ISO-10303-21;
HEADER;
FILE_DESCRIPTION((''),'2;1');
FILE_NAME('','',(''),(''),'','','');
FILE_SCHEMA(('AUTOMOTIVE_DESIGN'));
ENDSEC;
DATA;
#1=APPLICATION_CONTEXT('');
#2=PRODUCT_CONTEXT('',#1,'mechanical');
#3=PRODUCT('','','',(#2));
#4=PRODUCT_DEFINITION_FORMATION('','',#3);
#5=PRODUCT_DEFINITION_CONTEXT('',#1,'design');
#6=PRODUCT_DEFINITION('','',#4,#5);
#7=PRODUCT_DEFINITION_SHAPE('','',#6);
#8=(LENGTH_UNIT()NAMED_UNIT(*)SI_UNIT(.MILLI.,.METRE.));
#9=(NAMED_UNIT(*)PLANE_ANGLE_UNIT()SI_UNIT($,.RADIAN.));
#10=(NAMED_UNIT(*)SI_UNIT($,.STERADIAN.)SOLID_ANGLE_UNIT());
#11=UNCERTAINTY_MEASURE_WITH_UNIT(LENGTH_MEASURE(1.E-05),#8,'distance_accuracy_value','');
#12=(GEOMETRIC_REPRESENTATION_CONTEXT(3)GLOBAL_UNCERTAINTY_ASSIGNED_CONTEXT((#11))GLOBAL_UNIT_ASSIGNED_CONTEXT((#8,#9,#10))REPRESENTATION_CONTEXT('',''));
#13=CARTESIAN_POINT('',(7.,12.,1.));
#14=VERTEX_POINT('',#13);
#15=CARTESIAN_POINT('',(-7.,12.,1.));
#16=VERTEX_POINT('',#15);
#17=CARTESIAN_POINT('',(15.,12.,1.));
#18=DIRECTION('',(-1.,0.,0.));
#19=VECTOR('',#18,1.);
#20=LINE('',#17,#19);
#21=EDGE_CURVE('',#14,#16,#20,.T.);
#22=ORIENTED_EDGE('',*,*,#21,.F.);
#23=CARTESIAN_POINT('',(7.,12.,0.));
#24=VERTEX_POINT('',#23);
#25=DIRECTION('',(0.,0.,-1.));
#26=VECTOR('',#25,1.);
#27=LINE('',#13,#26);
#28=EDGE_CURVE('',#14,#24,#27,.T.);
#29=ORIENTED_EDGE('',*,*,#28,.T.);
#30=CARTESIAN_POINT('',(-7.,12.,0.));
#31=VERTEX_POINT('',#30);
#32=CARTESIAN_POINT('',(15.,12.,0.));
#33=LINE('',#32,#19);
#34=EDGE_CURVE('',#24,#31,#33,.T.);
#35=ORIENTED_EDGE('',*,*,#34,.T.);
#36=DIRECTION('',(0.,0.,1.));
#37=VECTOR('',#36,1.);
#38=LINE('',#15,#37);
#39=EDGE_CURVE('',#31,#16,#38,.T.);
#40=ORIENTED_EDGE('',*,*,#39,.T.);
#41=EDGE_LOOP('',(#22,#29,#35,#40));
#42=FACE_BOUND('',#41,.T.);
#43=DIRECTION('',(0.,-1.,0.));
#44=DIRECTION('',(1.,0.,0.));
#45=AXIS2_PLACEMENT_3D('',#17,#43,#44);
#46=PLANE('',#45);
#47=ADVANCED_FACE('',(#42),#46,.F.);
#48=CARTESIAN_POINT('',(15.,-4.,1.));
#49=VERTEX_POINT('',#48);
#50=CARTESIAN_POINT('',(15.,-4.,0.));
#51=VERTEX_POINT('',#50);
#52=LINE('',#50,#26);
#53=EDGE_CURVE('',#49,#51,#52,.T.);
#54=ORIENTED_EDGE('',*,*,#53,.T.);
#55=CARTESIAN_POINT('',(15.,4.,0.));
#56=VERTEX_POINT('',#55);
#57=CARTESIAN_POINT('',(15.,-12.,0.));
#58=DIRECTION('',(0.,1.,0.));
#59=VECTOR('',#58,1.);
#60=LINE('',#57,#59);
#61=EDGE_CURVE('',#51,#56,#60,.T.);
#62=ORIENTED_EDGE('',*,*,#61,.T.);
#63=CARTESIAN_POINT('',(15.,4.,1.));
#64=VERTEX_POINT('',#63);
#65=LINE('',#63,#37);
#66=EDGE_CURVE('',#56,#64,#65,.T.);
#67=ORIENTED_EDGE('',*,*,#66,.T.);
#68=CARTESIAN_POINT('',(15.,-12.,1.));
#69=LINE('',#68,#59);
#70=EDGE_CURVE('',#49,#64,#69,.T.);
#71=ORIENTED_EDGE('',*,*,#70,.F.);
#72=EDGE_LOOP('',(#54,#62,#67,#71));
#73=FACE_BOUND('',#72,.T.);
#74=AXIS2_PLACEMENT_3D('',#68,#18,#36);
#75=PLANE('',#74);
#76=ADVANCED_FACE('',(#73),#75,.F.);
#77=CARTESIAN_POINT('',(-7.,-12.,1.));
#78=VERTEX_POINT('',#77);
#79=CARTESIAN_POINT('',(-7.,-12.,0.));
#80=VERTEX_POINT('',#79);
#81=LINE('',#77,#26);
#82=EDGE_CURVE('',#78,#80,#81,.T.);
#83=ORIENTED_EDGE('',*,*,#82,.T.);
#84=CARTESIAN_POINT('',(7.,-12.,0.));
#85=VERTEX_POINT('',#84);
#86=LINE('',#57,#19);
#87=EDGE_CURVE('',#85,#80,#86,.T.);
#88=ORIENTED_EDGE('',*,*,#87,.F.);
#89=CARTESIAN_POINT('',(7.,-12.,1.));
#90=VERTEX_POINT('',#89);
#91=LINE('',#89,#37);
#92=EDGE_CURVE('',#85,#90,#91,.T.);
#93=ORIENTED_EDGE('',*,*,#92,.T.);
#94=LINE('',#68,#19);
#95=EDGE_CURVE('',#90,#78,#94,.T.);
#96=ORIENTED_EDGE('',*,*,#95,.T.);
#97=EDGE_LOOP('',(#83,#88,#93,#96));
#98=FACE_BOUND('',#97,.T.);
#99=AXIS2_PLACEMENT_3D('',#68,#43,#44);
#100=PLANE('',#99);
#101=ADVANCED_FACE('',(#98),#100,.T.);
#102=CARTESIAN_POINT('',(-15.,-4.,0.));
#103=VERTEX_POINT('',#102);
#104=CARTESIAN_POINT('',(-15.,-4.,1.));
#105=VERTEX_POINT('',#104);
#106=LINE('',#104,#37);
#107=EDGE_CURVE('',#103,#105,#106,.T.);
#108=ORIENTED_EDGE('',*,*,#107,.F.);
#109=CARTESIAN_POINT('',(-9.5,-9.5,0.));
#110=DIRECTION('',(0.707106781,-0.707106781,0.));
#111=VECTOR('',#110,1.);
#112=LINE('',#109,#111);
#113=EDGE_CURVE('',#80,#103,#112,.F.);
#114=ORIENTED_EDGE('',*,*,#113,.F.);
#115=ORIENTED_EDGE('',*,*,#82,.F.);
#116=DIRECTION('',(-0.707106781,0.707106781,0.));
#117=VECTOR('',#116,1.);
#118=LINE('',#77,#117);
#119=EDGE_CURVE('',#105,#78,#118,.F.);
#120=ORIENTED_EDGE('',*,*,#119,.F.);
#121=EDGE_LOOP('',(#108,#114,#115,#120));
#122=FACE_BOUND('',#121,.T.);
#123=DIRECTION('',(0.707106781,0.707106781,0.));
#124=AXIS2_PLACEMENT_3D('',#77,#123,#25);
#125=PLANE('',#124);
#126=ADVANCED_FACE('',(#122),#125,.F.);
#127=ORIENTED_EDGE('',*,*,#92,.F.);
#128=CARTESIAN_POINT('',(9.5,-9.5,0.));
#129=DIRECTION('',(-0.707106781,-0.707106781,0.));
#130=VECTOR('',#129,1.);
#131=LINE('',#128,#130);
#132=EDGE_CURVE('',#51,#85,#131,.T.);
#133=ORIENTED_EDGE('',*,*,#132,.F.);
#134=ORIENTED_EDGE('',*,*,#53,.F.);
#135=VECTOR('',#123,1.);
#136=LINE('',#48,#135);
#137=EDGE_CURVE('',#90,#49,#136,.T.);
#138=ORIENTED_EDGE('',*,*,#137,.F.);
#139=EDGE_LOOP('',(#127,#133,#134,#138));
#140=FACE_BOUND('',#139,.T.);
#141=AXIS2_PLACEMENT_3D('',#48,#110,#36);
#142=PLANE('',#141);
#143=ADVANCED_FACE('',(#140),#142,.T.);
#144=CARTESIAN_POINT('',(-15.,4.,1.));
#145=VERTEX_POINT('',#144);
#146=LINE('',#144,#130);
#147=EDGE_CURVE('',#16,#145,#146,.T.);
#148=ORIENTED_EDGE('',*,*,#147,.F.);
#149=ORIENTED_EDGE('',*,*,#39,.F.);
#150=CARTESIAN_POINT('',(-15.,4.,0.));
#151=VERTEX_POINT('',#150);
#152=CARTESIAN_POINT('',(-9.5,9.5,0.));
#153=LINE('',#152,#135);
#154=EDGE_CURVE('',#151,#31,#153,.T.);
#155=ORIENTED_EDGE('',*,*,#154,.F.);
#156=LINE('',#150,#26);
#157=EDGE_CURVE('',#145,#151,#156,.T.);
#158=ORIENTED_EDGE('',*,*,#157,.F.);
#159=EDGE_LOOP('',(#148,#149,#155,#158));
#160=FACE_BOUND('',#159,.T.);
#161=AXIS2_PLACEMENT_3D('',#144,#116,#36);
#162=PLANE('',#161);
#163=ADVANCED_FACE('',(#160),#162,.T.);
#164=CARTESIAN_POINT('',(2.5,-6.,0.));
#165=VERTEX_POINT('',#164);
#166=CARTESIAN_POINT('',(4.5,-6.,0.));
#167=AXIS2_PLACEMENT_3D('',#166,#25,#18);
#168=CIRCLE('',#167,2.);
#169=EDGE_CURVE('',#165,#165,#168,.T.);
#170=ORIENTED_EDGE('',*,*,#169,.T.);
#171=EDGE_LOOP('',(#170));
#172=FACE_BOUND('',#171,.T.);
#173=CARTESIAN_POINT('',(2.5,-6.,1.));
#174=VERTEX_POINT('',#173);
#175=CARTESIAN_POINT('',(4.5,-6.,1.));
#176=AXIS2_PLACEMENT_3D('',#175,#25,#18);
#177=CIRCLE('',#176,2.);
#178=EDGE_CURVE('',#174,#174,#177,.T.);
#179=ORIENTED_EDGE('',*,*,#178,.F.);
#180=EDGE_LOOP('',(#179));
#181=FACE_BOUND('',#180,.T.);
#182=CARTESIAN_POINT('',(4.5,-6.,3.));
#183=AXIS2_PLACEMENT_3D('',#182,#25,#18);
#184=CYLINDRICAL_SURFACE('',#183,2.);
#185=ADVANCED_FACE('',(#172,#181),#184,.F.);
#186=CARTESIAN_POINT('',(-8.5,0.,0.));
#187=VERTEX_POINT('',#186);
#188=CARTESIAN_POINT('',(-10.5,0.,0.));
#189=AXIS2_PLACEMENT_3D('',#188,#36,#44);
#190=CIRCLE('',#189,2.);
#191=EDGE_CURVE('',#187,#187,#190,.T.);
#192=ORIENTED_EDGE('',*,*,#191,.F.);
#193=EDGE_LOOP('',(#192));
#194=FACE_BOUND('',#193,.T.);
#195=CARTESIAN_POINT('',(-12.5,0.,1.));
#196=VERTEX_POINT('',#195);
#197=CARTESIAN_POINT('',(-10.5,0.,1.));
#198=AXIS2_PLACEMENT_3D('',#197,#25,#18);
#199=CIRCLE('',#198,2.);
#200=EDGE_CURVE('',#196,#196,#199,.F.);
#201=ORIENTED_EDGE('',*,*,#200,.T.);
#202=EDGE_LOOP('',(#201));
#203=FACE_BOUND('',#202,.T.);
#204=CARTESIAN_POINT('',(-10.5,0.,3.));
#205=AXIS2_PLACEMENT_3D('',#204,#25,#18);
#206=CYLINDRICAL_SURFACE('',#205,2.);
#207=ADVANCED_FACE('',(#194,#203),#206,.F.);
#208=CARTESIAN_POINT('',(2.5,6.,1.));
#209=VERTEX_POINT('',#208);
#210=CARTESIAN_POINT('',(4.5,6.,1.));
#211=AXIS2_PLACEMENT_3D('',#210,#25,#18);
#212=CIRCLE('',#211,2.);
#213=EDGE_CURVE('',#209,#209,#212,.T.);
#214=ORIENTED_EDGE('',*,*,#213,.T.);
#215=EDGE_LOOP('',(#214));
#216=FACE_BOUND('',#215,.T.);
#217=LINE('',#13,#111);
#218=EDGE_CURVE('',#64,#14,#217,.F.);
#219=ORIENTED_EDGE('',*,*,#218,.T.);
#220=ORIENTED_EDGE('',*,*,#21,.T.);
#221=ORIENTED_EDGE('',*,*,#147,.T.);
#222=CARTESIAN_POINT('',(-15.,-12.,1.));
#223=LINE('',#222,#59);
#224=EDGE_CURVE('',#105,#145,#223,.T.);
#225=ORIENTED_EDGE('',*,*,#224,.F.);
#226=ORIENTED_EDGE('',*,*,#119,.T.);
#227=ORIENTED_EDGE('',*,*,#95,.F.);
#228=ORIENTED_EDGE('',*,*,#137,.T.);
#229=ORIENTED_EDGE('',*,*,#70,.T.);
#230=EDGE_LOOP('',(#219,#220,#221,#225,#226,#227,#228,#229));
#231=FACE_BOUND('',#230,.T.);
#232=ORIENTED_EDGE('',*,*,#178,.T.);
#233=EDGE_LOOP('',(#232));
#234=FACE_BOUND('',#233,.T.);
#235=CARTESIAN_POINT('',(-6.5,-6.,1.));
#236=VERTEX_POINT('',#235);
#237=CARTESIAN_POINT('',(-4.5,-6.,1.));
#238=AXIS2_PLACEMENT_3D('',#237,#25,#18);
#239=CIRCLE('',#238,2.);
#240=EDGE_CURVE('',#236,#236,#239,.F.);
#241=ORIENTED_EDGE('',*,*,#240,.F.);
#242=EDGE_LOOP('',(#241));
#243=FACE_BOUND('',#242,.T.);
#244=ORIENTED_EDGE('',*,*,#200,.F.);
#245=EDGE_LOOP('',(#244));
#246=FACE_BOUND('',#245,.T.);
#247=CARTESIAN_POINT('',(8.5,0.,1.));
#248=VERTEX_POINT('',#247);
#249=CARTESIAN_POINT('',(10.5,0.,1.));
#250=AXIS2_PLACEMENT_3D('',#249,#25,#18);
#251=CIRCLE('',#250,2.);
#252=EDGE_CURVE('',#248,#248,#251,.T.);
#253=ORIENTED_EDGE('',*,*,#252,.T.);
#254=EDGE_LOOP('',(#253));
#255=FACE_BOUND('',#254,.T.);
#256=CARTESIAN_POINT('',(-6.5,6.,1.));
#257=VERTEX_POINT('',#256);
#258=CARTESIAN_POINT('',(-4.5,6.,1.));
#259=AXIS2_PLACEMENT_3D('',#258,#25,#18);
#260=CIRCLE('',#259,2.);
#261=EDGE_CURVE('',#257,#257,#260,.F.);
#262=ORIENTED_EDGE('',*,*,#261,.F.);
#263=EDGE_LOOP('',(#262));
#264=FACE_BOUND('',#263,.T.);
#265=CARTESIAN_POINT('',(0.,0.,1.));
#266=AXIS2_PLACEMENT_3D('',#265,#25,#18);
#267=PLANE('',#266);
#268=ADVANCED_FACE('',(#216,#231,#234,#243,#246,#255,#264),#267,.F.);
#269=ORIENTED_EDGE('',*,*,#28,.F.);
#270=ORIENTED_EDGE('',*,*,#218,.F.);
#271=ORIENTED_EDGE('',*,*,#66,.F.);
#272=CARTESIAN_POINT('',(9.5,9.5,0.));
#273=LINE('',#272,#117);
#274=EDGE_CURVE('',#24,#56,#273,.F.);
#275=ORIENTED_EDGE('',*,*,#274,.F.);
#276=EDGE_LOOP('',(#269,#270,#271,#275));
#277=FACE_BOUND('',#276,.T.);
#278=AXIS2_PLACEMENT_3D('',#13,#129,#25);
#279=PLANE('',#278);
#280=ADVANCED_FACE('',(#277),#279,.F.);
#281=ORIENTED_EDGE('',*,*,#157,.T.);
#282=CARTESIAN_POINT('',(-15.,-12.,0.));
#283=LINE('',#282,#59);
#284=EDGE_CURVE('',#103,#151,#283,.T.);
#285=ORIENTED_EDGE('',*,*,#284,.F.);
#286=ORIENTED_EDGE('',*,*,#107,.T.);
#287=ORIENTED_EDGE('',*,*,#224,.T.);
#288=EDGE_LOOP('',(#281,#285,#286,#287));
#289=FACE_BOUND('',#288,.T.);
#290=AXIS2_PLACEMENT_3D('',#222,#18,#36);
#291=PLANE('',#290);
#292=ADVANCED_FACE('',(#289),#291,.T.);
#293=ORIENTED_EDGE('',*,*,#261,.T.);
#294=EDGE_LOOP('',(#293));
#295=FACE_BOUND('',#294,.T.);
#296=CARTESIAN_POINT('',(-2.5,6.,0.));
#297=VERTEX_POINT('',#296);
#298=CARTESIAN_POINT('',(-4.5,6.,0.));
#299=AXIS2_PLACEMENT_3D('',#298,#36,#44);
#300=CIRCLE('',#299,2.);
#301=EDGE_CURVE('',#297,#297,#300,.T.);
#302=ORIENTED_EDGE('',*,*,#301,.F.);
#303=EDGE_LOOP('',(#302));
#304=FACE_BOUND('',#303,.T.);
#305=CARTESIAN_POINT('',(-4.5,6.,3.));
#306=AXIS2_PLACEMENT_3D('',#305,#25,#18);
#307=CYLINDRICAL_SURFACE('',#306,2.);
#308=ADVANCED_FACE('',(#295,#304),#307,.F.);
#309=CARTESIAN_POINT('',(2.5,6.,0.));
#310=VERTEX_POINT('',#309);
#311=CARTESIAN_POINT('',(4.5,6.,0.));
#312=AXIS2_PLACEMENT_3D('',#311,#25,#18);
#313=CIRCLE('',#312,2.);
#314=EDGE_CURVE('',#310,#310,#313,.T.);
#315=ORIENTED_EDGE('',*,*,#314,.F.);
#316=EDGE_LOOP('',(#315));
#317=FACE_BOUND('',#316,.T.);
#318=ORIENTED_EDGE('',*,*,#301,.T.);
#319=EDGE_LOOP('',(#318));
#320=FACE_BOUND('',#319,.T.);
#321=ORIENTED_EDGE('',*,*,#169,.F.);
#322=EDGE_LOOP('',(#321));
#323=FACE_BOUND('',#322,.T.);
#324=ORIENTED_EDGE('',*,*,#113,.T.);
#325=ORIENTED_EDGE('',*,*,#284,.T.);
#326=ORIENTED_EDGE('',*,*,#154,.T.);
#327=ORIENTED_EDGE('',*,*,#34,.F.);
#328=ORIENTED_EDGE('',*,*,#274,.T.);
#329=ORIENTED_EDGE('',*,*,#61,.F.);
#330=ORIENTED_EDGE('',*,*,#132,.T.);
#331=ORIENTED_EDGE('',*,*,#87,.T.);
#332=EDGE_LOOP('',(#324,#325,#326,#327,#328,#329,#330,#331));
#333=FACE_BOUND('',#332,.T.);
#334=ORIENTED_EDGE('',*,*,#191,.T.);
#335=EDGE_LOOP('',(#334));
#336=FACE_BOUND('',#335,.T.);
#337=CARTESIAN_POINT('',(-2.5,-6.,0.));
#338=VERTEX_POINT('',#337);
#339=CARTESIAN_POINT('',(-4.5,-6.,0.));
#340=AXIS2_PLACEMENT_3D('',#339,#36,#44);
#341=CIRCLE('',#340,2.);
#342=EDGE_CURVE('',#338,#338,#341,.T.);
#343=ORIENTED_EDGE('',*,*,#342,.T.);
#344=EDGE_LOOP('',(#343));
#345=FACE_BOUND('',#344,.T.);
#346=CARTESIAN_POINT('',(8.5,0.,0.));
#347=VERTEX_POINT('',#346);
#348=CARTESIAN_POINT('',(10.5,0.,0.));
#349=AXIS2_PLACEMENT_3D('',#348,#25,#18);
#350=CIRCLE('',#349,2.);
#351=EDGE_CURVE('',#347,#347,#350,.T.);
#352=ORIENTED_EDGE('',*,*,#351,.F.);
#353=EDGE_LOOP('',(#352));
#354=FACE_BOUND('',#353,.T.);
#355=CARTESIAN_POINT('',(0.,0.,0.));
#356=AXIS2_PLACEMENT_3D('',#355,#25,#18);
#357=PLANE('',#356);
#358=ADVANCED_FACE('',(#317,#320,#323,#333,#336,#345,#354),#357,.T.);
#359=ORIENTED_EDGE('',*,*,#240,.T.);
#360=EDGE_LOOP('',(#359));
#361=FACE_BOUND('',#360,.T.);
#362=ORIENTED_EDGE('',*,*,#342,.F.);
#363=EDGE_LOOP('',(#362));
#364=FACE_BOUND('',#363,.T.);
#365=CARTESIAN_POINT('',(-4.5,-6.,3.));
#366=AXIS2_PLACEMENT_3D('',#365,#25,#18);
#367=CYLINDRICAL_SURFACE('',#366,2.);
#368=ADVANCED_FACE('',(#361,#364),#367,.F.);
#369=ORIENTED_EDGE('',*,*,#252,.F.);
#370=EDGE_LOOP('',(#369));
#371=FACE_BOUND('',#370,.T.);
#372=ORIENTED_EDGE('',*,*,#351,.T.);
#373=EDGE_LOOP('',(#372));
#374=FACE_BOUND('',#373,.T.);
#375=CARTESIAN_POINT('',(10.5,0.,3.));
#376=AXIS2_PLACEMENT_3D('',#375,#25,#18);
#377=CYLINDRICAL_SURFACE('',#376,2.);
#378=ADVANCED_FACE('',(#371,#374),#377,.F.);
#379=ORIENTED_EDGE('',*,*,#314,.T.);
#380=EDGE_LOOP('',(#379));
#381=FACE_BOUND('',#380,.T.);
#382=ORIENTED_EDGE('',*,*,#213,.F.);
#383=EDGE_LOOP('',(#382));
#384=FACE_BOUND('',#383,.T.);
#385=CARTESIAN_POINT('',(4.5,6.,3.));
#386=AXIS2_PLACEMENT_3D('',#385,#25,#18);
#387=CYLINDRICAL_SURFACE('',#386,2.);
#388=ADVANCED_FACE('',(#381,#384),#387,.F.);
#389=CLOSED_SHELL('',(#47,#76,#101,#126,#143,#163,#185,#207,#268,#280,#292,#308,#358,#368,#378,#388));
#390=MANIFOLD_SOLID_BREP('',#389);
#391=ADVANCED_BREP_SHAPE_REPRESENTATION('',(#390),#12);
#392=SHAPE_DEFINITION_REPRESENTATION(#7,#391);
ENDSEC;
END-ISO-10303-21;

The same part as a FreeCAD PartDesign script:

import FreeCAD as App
import Part
import Sketcher
from FreeCAD import Vector
Q = App.Units.Quantity


def edges_at(feature, points):
    """Names of the edges that pass closest to the given points."""
    edges = feature.Shape.Edges
    near = lambda p: min(range(len(edges)), key=lambda i: edges[i].distToShape(Part.Vertex(*p))[0])
    return sorted({f"Edge{near(p) + 1}" for p in points})

doc = App.newDocument("Part")
body = doc.addObject("PartDesign::Body", "Body")

# Sketch on XY plane
sketch1 = body.newObject("Sketcher::SketchObject", "Sketch")
sketch1.AttachmentSupport = (doc.getObject("XY_Plane"), [""])
sketch1.MapMode = "FlatFace"
sketch1.addGeometry(Part.LineSegment(Vector(-15, 12, 0), Vector(-15, -12, 0)), False)
sketch1.addGeometry(Part.LineSegment(Vector(-15, -12, 0), Vector(15, -12, 0)), False)
sketch1.addGeometry(Part.LineSegment(Vector(15, -12, 0), Vector(15, 12, 0)), False)
sketch1.addGeometry(Part.LineSegment(Vector(15, 12, 0), Vector(-15, 12, 0)), False)
sketch1.addConstraint(Sketcher.Constraint("Coincident", 0, 2, 1, 1))
sketch1.addConstraint(Sketcher.Constraint("Coincident", 1, 2, 2, 1))
sketch1.addConstraint(Sketcher.Constraint("Coincident", 2, 2, 3, 1))
sketch1.addConstraint(Sketcher.Constraint("Coincident", 3, 2, 0, 1))
sketch1.addConstraint(Sketcher.Constraint("Vertical", 0))
sketch1.addConstraint(Sketcher.Constraint("Horizontal", 1))
sketch1.addConstraint(Sketcher.Constraint("Vertical", 2))
sketch1.addConstraint(Sketcher.Constraint("Horizontal", 3))
sketch1.addConstraint(Sketcher.Constraint("Symmetric", 0, 2, 2, 2, -1, 1))
sketch1.addConstraint(Sketcher.Constraint("DistanceX", 1, 1, 1, 2, Q("30 mm")))
sketch1.addConstraint(Sketcher.Constraint("DistanceY", 0, 2, 0, 1, Q("24 mm")))
pad1 = body.newObject("PartDesign::Pad", "Pad")
pad1.Profile = sketch1
pad1.Length = 1

# Sketch on XY plane
sketch2 = body.newObject("Sketcher::SketchObject", "Sketch001")
sketch2.AttachmentSupport = (doc.getObject("XY_Plane"), [""])
sketch2.MapMode = "FlatFace"
sketch2.addGeometry(Part.Circle(Vector(4.5, 6, 0), Vector(0, 0, 1), 2), False)
sketch2.addGeometry(Part.Circle(Vector(4.5, -6, 0), Vector(0, 0, 1), 2), False)
sketch2.addGeometry(Part.Circle(Vector(10.5, 0, 0), Vector(0, 0, 1), 2), False)
sketch2.addConstraint(Sketcher.Constraint("Equal", 0, 1))
sketch2.addConstraint(Sketcher.Constraint("Equal", 1, 2))
sketch2.addConstraint(Sketcher.Constraint("Symmetric", 0, 3, 1, 3, -1))
sketch2.addConstraint(Sketcher.Constraint("PointOnObject", 2, 3, -1))
sketch2.addConstraint(Sketcher.Constraint("Diameter", 0, Q("4 mm")))
sketch2.addConstraint(Sketcher.Constraint("DistanceY", -1, 1, 0, 3, Q("6 mm")))
sketch2.addConstraint(Sketcher.Constraint("DistanceX", 0, 3, 2, 3, Q("6 mm")))
sketch2.addConstraint(Sketcher.Constraint("DistanceX", -1, 1, 0, 3, Q("4.5 mm")))
pocket1 = body.newObject("PartDesign::Pocket", "Pocket")
pocket1.Profile = sketch2
pocket1.Length = 3
pocket1.Reversed = True
doc.recompute()

chamfer = body.newObject("PartDesign::Chamfer", "Chamfer")
chamfer.Base = (pocket1, edges_at(pocket1, [
    (15, -12, 0.5),
    (15, 12, 0.5),
    (-15, 12, 0.5),
    (-15, -12, 0.5),
]))
chamfer.Size = 8
doc.recompute()

mirrored = body.newObject("PartDesign::Mirrored", "Mirrored")
mirrored.Originals = [pocket1]
mirrored.MirrorPlane = (doc.getObject("YZ_Plane"), [""])
body.Tip = mirrored

doc.recompute()
